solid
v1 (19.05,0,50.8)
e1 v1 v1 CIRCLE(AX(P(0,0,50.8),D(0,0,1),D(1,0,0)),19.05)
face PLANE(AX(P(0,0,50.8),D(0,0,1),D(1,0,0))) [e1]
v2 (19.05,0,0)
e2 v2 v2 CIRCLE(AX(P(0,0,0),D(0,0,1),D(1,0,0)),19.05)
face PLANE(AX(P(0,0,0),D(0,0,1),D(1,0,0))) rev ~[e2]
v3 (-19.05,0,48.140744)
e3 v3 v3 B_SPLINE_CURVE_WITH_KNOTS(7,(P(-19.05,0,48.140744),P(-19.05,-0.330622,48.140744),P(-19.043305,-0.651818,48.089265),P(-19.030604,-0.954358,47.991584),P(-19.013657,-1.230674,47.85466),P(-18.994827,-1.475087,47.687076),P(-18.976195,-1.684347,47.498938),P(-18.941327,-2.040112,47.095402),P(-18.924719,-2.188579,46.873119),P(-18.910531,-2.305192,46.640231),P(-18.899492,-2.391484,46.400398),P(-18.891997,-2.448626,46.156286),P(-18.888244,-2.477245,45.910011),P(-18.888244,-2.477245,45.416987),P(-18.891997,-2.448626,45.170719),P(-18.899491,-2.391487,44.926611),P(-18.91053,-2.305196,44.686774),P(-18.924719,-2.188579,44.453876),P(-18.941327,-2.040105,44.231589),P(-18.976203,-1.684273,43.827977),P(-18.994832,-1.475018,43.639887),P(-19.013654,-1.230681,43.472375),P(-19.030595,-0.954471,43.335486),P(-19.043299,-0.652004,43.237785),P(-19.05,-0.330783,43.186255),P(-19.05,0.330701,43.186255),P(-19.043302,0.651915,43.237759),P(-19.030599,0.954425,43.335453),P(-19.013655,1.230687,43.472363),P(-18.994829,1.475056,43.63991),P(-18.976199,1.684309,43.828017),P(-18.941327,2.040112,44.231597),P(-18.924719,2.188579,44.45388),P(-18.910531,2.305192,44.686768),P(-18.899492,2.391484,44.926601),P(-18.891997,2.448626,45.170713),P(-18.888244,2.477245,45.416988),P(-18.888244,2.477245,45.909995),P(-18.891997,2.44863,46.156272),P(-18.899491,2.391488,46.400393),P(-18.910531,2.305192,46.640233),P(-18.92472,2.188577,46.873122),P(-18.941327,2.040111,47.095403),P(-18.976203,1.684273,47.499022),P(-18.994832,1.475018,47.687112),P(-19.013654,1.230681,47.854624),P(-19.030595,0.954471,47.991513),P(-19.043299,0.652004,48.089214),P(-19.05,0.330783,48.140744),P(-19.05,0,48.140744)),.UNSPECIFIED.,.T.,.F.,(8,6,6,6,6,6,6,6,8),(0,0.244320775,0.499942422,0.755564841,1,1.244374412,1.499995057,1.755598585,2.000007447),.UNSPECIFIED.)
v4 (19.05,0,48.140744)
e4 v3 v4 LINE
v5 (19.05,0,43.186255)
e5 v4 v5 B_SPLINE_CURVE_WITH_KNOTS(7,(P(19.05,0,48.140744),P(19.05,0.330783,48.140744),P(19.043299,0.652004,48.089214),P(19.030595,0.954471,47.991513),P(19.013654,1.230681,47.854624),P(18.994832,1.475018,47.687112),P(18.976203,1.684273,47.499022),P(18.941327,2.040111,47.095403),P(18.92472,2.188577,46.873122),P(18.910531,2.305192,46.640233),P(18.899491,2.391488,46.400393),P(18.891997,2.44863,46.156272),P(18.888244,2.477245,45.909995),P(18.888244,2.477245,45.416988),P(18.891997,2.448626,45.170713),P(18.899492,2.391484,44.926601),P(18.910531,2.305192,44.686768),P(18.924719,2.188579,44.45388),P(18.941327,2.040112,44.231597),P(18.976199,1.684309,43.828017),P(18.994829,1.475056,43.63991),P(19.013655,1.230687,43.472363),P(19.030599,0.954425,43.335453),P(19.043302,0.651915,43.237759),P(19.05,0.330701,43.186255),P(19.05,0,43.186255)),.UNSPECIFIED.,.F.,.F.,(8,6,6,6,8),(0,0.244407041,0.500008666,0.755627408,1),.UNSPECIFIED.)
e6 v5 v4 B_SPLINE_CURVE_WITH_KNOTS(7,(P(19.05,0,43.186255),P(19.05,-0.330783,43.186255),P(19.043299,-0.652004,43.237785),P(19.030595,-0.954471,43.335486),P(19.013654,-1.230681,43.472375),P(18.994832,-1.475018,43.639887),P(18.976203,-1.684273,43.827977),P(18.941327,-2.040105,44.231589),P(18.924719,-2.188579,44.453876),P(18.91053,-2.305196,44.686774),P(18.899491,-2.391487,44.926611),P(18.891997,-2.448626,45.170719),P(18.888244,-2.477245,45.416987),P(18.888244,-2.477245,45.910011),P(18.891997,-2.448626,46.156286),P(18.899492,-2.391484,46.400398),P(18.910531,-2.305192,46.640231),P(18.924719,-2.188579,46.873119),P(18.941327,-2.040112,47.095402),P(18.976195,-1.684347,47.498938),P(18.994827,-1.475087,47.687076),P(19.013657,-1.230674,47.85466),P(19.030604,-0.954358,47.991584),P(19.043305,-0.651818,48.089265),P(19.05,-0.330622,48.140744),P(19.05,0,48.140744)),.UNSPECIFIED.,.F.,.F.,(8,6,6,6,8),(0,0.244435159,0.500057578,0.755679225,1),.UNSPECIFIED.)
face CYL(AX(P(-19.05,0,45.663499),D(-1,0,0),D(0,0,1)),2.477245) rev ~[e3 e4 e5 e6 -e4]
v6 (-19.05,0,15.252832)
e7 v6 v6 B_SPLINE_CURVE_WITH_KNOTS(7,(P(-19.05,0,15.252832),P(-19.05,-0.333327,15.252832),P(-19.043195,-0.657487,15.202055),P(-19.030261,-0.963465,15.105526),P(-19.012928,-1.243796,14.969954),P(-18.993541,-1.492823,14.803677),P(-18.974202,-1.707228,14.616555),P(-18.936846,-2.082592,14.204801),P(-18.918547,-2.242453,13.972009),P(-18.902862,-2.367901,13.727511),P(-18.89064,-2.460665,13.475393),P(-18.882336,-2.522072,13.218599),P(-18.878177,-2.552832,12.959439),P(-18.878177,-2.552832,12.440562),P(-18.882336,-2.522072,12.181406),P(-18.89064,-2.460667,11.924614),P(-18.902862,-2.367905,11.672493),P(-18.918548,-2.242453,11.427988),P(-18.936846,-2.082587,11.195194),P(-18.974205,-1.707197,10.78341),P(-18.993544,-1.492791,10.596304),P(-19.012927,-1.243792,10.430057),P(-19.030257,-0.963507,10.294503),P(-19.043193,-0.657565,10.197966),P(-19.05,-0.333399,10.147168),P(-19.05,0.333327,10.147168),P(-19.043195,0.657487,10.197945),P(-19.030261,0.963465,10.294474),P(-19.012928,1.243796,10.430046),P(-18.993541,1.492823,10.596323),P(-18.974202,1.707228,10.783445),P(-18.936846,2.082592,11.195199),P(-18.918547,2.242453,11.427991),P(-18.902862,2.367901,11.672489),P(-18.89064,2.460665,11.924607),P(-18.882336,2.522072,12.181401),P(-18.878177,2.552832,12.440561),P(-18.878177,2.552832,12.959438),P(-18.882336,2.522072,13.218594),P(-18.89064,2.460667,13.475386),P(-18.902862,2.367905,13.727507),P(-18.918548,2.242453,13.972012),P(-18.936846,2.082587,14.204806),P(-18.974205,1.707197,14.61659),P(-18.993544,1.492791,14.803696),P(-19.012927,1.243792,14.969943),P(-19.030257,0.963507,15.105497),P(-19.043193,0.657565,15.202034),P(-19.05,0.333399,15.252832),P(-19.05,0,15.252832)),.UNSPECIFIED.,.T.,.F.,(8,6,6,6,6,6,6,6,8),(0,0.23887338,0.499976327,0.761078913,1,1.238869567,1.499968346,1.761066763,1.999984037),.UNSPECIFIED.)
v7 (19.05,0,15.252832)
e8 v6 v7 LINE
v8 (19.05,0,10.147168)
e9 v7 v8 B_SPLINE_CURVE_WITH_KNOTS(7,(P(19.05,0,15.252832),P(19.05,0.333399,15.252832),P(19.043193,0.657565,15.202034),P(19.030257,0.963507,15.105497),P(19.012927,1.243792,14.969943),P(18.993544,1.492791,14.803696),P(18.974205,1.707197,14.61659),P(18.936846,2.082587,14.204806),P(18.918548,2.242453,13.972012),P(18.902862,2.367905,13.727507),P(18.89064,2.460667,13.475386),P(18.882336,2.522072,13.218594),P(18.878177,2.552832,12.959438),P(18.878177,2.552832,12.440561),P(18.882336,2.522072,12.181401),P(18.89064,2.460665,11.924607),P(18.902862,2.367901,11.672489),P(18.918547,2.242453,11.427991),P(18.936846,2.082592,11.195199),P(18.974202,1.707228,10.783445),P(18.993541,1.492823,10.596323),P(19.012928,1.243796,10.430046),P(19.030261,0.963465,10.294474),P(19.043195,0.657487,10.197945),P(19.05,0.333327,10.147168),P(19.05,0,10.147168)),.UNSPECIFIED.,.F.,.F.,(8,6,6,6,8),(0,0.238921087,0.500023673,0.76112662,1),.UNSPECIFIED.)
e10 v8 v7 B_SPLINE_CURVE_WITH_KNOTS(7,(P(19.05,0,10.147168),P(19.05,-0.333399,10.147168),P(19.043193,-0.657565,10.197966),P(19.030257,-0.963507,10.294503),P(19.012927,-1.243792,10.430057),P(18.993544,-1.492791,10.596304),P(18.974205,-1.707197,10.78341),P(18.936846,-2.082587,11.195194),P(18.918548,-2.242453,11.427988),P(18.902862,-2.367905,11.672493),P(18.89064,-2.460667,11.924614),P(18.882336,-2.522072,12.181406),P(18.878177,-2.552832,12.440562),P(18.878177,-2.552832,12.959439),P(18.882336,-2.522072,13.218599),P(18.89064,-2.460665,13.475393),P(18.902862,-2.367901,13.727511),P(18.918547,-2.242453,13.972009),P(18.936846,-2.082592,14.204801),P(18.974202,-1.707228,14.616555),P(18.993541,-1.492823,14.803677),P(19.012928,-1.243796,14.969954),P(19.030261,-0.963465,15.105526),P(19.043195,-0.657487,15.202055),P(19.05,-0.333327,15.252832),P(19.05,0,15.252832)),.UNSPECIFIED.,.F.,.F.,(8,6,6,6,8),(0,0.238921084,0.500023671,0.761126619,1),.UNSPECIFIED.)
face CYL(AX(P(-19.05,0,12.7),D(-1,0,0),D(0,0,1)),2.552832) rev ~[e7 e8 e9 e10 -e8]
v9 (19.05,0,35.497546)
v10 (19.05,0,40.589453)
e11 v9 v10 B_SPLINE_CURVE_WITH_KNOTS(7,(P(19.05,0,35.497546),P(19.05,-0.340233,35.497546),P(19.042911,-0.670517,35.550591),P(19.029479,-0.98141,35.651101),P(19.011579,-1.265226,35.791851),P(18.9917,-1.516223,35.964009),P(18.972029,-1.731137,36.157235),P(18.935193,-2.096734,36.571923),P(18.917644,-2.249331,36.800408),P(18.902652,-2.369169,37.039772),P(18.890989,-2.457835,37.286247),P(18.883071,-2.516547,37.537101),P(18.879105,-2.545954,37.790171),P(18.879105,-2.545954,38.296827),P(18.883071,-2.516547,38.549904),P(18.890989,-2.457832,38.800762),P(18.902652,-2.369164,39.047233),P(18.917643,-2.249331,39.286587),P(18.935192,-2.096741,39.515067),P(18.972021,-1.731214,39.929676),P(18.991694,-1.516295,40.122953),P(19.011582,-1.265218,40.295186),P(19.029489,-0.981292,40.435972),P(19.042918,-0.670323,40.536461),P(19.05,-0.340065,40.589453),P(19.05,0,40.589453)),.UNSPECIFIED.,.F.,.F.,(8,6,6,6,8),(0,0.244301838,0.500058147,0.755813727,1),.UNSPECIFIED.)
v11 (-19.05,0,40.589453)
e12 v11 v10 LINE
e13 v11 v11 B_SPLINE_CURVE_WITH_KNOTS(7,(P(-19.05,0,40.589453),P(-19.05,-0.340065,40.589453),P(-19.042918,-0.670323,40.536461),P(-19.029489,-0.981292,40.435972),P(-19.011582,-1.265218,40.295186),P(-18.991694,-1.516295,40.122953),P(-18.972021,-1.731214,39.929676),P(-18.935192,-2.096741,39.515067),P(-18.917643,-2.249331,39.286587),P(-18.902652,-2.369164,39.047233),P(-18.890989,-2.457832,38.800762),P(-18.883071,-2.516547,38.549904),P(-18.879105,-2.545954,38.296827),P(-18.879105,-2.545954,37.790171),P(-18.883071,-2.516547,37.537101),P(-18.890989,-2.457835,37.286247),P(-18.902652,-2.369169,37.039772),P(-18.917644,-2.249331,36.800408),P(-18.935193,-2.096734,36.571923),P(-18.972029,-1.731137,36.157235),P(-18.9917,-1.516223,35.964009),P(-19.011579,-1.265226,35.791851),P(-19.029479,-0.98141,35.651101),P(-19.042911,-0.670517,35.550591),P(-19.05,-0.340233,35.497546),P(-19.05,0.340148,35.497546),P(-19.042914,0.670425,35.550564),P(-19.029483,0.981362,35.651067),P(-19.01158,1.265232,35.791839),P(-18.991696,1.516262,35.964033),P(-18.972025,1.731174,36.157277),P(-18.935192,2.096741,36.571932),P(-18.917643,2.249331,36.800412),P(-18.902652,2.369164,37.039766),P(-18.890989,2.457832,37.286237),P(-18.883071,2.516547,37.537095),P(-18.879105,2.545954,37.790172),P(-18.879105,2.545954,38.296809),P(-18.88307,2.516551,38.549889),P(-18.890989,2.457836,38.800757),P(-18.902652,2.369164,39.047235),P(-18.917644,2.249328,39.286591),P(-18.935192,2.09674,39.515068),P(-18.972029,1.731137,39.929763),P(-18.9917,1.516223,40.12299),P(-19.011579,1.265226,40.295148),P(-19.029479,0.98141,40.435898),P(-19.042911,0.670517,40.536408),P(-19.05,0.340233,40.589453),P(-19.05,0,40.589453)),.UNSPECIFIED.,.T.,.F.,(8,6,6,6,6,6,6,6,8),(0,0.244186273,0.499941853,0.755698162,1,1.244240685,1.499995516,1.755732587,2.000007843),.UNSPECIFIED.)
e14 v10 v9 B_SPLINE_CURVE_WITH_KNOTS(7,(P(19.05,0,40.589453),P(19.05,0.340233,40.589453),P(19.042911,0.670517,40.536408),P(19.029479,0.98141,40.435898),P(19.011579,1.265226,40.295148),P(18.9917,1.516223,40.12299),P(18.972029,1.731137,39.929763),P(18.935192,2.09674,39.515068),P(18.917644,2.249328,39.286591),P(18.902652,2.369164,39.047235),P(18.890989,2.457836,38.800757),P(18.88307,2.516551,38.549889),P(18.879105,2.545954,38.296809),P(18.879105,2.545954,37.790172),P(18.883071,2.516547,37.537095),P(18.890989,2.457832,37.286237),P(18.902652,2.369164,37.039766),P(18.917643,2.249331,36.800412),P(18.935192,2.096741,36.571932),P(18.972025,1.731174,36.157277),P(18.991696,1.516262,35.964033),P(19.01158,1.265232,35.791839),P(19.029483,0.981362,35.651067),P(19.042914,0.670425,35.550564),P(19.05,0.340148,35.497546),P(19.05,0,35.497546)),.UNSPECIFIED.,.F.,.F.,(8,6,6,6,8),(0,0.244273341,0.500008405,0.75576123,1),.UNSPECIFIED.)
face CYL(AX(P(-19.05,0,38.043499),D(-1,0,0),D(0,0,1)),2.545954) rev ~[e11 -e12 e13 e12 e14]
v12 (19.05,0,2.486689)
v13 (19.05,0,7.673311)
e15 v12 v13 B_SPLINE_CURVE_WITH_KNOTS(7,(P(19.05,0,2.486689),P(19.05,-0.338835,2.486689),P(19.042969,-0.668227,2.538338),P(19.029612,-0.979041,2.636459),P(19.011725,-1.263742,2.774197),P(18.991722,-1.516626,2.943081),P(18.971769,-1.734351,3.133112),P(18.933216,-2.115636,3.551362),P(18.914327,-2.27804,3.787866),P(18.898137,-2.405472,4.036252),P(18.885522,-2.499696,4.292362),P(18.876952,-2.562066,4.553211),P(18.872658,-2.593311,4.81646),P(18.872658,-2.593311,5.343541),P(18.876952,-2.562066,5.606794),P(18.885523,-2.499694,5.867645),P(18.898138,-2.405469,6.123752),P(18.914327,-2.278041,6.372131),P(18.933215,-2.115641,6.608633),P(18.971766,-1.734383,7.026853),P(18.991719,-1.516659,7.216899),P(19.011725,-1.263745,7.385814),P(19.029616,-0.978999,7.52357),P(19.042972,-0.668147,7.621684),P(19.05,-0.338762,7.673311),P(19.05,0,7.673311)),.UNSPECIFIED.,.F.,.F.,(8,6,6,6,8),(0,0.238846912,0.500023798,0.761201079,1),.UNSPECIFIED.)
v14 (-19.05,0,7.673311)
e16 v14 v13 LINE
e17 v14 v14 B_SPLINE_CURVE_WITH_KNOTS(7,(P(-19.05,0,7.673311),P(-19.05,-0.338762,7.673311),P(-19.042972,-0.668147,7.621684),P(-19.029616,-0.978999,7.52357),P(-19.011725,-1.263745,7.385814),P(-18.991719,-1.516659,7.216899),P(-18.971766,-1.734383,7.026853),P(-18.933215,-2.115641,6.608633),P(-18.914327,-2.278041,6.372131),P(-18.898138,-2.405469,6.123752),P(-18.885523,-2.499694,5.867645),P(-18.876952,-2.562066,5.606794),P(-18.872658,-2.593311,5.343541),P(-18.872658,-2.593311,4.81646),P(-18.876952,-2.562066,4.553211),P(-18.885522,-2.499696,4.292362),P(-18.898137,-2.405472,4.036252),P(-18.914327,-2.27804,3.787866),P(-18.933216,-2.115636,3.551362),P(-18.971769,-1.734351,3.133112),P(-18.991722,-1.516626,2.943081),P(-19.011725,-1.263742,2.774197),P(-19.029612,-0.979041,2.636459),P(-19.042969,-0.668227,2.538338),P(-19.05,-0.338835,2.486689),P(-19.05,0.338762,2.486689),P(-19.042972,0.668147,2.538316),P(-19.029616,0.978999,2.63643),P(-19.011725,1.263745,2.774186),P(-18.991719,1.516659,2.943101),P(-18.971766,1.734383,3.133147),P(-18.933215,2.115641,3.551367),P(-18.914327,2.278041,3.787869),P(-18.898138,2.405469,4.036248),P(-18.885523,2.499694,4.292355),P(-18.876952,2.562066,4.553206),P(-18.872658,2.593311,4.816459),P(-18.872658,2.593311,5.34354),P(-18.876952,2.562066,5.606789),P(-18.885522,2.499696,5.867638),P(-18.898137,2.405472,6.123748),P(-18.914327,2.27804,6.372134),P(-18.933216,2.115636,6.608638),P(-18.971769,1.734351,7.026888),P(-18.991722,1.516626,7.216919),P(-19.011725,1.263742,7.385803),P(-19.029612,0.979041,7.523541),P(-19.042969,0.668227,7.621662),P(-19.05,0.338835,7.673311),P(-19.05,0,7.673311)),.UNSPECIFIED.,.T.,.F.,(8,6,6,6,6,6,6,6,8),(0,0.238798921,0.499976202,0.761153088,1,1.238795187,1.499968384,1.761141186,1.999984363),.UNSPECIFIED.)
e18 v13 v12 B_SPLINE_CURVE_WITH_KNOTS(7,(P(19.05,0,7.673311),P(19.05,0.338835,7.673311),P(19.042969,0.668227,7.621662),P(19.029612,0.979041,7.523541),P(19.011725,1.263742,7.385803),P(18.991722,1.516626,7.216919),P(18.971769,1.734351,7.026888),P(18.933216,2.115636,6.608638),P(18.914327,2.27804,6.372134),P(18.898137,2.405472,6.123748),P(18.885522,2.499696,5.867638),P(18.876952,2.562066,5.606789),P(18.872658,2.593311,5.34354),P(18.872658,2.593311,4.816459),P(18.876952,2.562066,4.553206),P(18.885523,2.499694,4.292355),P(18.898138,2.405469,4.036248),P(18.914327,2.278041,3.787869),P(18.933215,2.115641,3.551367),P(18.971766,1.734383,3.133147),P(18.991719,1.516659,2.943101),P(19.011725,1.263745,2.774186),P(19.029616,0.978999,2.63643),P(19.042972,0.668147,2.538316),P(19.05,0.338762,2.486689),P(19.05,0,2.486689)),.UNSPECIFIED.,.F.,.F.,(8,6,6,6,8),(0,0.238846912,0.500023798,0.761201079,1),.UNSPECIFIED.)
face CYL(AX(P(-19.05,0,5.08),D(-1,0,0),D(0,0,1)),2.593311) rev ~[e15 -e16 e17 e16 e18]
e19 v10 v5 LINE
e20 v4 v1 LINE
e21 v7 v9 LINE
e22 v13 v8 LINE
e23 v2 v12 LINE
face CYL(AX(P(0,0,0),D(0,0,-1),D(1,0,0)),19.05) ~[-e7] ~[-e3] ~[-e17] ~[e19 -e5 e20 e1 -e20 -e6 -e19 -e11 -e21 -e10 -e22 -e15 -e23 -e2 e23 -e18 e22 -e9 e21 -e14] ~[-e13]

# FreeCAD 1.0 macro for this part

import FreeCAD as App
import Part
import Sketcher
Q = App.Units.Quantity

doc = App.newDocument("Part")
body = doc.addObject("PartDesign::Body", "Body")

# Sketch on XY plane
sketch1 = doc.addObject("Sketcher::SketchObject", "Sketch")
body.addObject(sketch1)
sketch1.AttachmentSupport = (doc.XY_Plane, [""])
sketch1.MapMode = "FlatFace"
sketch1.addGeometry(Part.Circle(App.Vector(0, 0, 0), App.Vector(0, 0, 1), 19), False)
sketch1.addConstraint([
    Sketcher.Constraint("Coincident", 0, 3, -1, 1),
    Sketcher.Constraint("Diameter", 0, Q("1.5 in")),
])
pad1 = doc.addObject("PartDesign::Pad", "Pad")
body.addObject(pad1)
pad1.Profile = sketch1
pad1.Length = Q("2 in")

# Sketch on YZ plane
sketch2 = doc.addObject("Sketcher::SketchObject", "Sketch001")
body.addObject(sketch2)
sketch2.AttachmentSupport = (doc.YZ_Plane, [""])
sketch2.MapMode = "FlatFace"
sketch2.AttachmentOffset = App.Placement(App.Vector(0, 0, -0.75 * 25.4), App.Rotation())
sketch2.addGeometry([
    Part.Circle(App.Vector(0, 5.1, 0), App.Vector(0, 0, 1), 2.6),
    Part.Circle(App.Vector(0, 12.7, 0), App.Vector(0, 0, 1), 2.6),
    Part.Circle(App.Vector(0, 45.7, 0), App.Vector(0, 0, 1), 2.5),
    Part.Circle(App.Vector(0, 38, 0), App.Vector(0, 0, 1), 2.5),
], False)
sketch2.addConstraint([
    Sketcher.Constraint("PointOnObject", 0, 3, -2),
    Sketcher.Constraint("PointOnObject", 1, 3, -2),
    Sketcher.Constraint("PointOnObject", 2, 3, -2),
    Sketcher.Constraint("PointOnObject", 3, 3, -2),
    Sketcher.Constraint("DistanceY", -1, 1, 0, 3, Q("0.2 in")),
    Sketcher.Constraint("DistanceY", -1, 1, 1, 3, Q("0.5 in")),
    Sketcher.Constraint("DistanceY", 3, 3, 2, 3, Q("0.3 in")),
    Sketcher.Constraint("Diameter", 2, Q("4.954489 mm")),
    Sketcher.Constraint("Diameter", 0, Q("5.186622 mm")),
    Sketcher.Constraint("Diameter", 1, Q("5.105663 mm")),
    Sketcher.Constraint("Diameter", 3, Q("5.091908 mm")),
    Sketcher.Constraint("DistanceY", -1, 1, 2, 3, Q("45.663499 mm")),
])
pocket1 = doc.addObject("PartDesign::Pocket", "Pocket")
body.addObject(pocket1)
pocket1.Profile = sketch2
pocket1.Type = "ThroughAll"
pocket1.Reversed = True

doc.recompute()
